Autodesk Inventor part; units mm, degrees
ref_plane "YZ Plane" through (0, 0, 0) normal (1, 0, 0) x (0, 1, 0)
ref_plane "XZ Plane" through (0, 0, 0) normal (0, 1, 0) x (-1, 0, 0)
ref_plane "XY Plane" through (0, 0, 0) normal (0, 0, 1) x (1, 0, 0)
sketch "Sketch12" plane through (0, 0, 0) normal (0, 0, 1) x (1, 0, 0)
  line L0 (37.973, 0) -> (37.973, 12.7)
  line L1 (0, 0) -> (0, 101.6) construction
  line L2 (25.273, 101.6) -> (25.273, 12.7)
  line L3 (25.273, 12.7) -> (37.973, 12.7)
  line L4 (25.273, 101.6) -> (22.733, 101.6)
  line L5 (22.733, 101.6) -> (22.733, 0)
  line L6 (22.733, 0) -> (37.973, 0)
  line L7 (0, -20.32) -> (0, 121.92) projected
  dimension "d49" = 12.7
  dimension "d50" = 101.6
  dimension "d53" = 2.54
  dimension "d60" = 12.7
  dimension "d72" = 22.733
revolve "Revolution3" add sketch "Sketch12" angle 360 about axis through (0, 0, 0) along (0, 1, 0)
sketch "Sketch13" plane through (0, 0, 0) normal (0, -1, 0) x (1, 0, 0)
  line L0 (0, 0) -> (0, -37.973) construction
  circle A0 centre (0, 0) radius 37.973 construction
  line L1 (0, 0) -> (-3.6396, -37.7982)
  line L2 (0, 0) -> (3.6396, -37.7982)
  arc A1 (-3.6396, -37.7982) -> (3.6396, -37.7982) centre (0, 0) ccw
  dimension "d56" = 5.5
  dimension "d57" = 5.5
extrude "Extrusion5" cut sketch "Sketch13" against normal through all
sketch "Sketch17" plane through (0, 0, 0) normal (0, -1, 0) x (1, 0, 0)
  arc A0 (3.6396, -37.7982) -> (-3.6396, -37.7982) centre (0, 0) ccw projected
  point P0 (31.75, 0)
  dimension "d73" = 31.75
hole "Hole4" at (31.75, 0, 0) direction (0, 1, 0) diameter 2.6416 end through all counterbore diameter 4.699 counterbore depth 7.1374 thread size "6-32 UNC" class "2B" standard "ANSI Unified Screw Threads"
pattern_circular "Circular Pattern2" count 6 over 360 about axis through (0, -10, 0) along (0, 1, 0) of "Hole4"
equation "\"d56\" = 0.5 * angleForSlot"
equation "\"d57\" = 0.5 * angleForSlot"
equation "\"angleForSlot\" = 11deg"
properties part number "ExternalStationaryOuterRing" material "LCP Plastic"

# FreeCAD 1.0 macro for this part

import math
import FreeCAD as App
import Part
import Sketcher
from FreeCAD import Vector
Q = App.Units.Quantity


def add_polygon(sketch, points):
    """Adds a closed chain of lines whose ends are joined by coincident constraints."""
    first, n = sketch.GeometryCount, len(points)
    for a, b in zip(points, points[1:] + points[:1]):
        sketch.addGeometry(Part.LineSegment(App.Vector(*a, 0), App.Vector(*b, 0)), False)
    for i in range(n):
        sketch.addConstraint(Sketcher.Constraint("Coincident", first + i, 2, first + (i + 1) % n, 1))

doc = App.newDocument("Part")
body = doc.addObject("PartDesign::Body", "Body")

sketch1 = doc.addObject("Sketcher::SketchObject", "Sketch")
body.addObject(sketch1)
sketch1.AttachmentSupport = (doc.XY_Plane, [""])
sketch1.MapMode = "FlatFace"
add_polygon(sketch1, [(22.733, 0), (37.973, 0), (37.973, 12.7), (25.273, 12.7), (25.273, 101.6), (22.733, 101.6)])
sketch1.addConstraint([
    Sketcher.Constraint("Horizontal", 0),
    Sketcher.Constraint("Vertical", 1),
    Sketcher.Constraint("Horizontal", 2),
    Sketcher.Constraint("Vertical", 3),
    Sketcher.Constraint("Horizontal", 4),
    Sketcher.Constraint("Vertical", 5),
    Sketcher.Constraint("PointOnObject", 0, 2, -1),
    Sketcher.Constraint("Equal", 2, 1),
    Sketcher.Constraint("DistanceY", 5, 2, 5, 1, Q("4 in")),
    Sketcher.Constraint("DistanceX", 2, 2, 2, 1, Q("0.5 in")),
    Sketcher.Constraint("DistanceX", 4, 2, 4, 1, Q("0.1 in")),
    Sketcher.Constraint("DistanceX", -1, 1, 4, 2, Q("0.895 in")),
])
revolution = doc.addObject("PartDesign::Revolution", "Revolution")
body.addObject(revolution)
revolution.Profile = sketch1
revolution.ReferenceAxis = (sketch1, ["V_Axis"])
revolution.Angle = 360

sketch2 = doc.addObject("Sketcher::SketchObject", "Sketch001")
body.addObject(sketch2)
sketch2.AttachmentSupport = (doc.XZ_Plane, [""])
sketch2.MapMode = "FlatFace"
sketch2.addGeometry([
    Part.LineSegment(Vector(3.6396, -37.7982, 0), Vector(0, 0, 0)),
    Part.LineSegment(Vector(0, 0, 0), Vector(-3.6396, -37.7982, 0)),
    Part.ArcOfCircle(Part.Circle(Vector(0, 0, 0), Vector(0, 0, 1), 37.973025), math.radians(-95.500071), math.radians(-84.499929)),
], False)
sketch2.addConstraint([
    Sketcher.Constraint("Coincident", 0, 2, 1, 1),
    Sketcher.Constraint("Coincident", 1, 2, 2, 1),
    Sketcher.Constraint("Coincident", 2, 2, 0, 1),
    Sketcher.Constraint("Coincident", 2, 3, -1, 1),
    Sketcher.Constraint("Coincident", 0, 2, -1, 1),
    Sketcher.Constraint("Horizontal", 1, 2, 2, 2),
    Sketcher.Constraint("Radius", 2, Q("1.495 in")),
    Sketcher.Constraint("Angle", 0, Q("95.5 deg")),
])
pocket1 = doc.addObject("PartDesign::Pocket", "Pocket")
body.addObject(pocket1)
pocket1.Profile = sketch2
pocket1.Type = "ThroughAll"

sketch3 = doc.addObject("Sketcher::SketchObject", "Sketch002")
body.addObject(sketch3)
sketch3.AttachmentSupport = (doc.XZ_Plane, [""])
sketch3.MapMode = "FlatFace"
sketch3.addGeometry(Part.Circle(Vector(31.75, 0, 0), Vector(0, 0, 1), 1.3208), False)
sketch3.addConstraint([
    Sketcher.Constraint("PointOnObject", 0, 3, -1),
    Sketcher.Constraint("Diameter", 0, Q("0.104 in")),
    Sketcher.Constraint("DistanceX", -1, 1, 0, 3, Q("1.25 in")),
])
doc.recompute()
hole = doc.addObject("PartDesign::Hole", "Hole")
body.addObject(hole)
hole.Profile = sketch3
hole.ThreadType = "None"
hole.Diameter = Q("0.104 in")
hole.DepthType = "ThroughAll"
hole.HoleCutType = "Counterbore"
hole.HoleCutDiameter = Q("0.185 in")
hole.HoleCutDepth = Q("0.281 in")
doc.recompute()

polarpattern = doc.addObject("PartDesign::PolarPattern", "PolarPattern")
body.addObject(polarpattern)
polarpattern.Originals = [hole]
polarpattern.Axis = (doc.Y_Axis, [""])
polarpattern.Angle = 360
polarpattern.Occurrences = 6
body.Tip = polarpattern

doc.recompute()
